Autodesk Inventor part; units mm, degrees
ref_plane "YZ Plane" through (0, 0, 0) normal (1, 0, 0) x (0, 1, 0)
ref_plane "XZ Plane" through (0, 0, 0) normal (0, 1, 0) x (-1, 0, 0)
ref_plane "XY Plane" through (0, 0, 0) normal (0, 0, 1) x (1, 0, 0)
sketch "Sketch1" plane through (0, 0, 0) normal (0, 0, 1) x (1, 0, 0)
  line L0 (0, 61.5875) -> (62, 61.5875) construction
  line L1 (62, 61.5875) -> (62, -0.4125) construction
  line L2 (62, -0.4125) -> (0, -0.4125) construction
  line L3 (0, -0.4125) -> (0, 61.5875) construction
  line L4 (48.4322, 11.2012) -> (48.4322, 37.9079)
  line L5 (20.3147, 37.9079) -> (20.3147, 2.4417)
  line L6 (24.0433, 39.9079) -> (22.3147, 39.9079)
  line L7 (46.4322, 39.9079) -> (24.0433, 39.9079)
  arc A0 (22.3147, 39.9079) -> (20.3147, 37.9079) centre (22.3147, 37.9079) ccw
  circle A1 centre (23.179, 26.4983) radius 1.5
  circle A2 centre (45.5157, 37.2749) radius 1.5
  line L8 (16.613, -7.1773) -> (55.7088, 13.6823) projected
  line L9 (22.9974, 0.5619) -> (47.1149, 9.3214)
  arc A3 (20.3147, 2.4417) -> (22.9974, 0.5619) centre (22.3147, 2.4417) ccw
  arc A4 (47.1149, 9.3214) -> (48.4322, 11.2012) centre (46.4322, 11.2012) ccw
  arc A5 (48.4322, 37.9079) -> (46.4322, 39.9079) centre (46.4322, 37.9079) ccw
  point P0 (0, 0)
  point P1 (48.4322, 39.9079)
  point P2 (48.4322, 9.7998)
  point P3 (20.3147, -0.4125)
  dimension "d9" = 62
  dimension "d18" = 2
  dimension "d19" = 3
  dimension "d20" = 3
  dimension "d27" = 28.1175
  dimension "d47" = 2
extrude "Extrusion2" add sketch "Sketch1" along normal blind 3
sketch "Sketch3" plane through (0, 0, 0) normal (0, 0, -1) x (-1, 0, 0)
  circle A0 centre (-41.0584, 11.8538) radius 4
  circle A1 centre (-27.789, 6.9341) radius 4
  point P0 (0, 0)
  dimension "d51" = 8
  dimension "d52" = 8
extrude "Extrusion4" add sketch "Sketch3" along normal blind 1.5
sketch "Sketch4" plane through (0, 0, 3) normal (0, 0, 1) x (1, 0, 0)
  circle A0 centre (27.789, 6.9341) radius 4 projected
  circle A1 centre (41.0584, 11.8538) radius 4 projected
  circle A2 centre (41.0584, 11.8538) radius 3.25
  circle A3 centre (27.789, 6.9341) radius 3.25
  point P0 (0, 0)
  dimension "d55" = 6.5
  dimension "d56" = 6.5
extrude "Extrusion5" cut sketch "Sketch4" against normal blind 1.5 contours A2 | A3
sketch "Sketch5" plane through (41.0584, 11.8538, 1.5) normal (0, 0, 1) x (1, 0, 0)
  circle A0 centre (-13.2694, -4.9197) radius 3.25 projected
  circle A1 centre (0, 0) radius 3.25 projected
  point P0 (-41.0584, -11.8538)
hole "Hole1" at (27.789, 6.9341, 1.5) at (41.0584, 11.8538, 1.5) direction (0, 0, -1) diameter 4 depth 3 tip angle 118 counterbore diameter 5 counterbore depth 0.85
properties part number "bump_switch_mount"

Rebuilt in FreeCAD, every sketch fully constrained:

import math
import FreeCAD as App
import Part
import Sketcher
from FreeCAD import Vector
Q = App.Units.Quantity

doc = App.newDocument("Part")
body = doc.addObject("PartDesign::Body", "Body")

sketch1 = doc.addObject("Sketcher::SketchObject", "Sketch")
body.addObject(sketch1)
sketch1.AttachmentSupport = (doc.XY_Plane, [""])
sketch1.MapMode = "FlatFace"
sketch1.addGeometry([
    Part.ArcOfCircle(Part.Circle(Vector(46.4322, 11.2012, 0), Vector(0, 0, 1), 1.999932), math.radians(-70.040146), math.radians(0)),
    Part.LineSegment(Vector(48.4322, 11.2012, 0), Vector(48.4322, 37.9079, 0)),
    Part.ArcOfCircle(Part.Circle(Vector(46.4322, 37.9079, 0), Vector(0, 0, 1), 2), math.radians(0), math.radians(90)),
    Part.LineSegment(Vector(46.4322, 39.9079, 0), Vector(22.3147, 39.9079, 0)),
    Part.ArcOfCircle(Part.Circle(Vector(22.3147, 37.9079, 0), Vector(0, 0, 1), 2), math.radians(90), math.radians(180)),
    Part.LineSegment(Vector(20.3147, 37.9079, 0), Vector(20.3147, 2.4417, 0)),
    Part.ArcOfCircle(Part.Circle(Vector(22.3147, 2.4417, 0), Vector(0, 0, 1), 2), math.radians(180), math.radians(289.959854)),
    Part.LineSegment(Vector(22.9974, 0.5619, 0), Vector(47.1149, 9.3214, 0)),
    Part.Circle(Vector(23.179, 26.4983, 0), Vector(0, 0, 1), 1.5),
    Part.Circle(Vector(45.5157, 37.2749, 0), Vector(0, 0, 1), 1.5),
], False)
sketch1.addConstraint([
    Sketcher.Constraint("Tangent", 0, 2, 1, 1),
    Sketcher.Constraint("Tangent", 1, 2, 2, 1),
    Sketcher.Constraint("Tangent", 2, 2, 3, 1),
    Sketcher.Constraint("Tangent", 3, 2, 4, 1),
    Sketcher.Constraint("Tangent", 4, 2, 5, 1),
    Sketcher.Constraint("Tangent", 5, 2, 6, 1),
    Sketcher.Constraint("Tangent", 6, 2, 7, 1),
    Sketcher.Constraint("Tangent", 7, 2, 0, 1),
    Sketcher.Constraint("Vertical", 1),
    Sketcher.Constraint("Horizontal", 3),
    Sketcher.Constraint("Vertical", 5),
    Sketcher.Constraint("Equal", 0, 2),
    Sketcher.Constraint("Equal", 2, 4),
    Sketcher.Constraint("Equal", 4, 6),
    Sketcher.Constraint("Equal", 8, 9),
    Sketcher.Constraint("Diameter", 8, Q("3 mm")),
    Sketcher.Constraint("Radius", 0, Q("2 mm")),
    Sketcher.Constraint("Angle", 7, Q("19.961 deg")),
    Sketcher.Constraint("DistanceX", 5, 2, 0, 2, Q("28.1174 mm")),
    Sketcher.Constraint("DistanceY", 1, 1, 1, 2, Q("26.7067 mm")),
    Sketcher.Constraint("DistanceY", -1, 1, 2, 3, Q("37.908 mm")),
    Sketcher.Constraint("DistanceX", -1, 1, 8, 3, Q("23.179 mm")),
    Sketcher.Constraint("DistanceY", -1, 1, 9, 3, Q("37.275 mm")),
    Sketcher.Constraint("DistanceX", -1, 1, 7, 2, Q("47.115 mm")),
    Sketcher.Constraint("DistanceY", 0, 3, 8, 3, Q("15.297 mm")),
    Sketcher.Constraint("DistanceX", 4, 3, 9, 3, Q("23.201 mm")),
])
pad1 = doc.addObject("PartDesign::Pad", "Pad")
body.addObject(pad1)
pad1.Profile = sketch1
pad1.Length = 3

sketch2 = doc.addObject("Sketcher::SketchObject", "Sketch001")
body.addObject(sketch2)
sketch2.AttachmentSupport = (doc.XY_Plane, [""])
sketch2.MapMode = "FlatFace"
sketch2.addGeometry([
    Part.Circle(Vector(41.0584, 11.8538, 0), Vector(0, 0, 1), 4),
    Part.Circle(Vector(27.789, 6.9341, 0), Vector(0, 0, 1), 4),
], False)
sketch2.addConstraint([
    Sketcher.Constraint("Equal", 0, 1),
    Sketcher.Constraint("Diameter", 0, Q("8 mm")),
    Sketcher.Constraint("DistanceX", -1, 1, 1, 3, Q("27.789 mm")),
    Sketcher.Constraint("DistanceY", -1, 1, 1, 3, Q("6.934 mm")),
    Sketcher.Constraint("DistanceX", -1, 1, 0, 3, Q("41.0584 mm")),
    Sketcher.Constraint("DistanceY", -1, 1, 0, 3, Q("11.8538 mm")),
])
pad2 = doc.addObject("PartDesign::Pad", "Pad001")
body.addObject(pad2)
pad2.Profile = sketch2
pad2.Length = 1.5
pad2.Reversed = True

sketch3 = doc.addObject("Sketcher::SketchObject", "Sketch002")
body.addObject(sketch3)
sketch3.AttachmentSupport = (doc.XY_Plane, [""])
sketch3.MapMode = "FlatFace"
sketch3.AttachmentOffset = App.Placement(Vector(0, 0, 3), App.Rotation())
sketch3.addGeometry([
    Part.Circle(Vector(41.0584, 11.8538, 0), Vector(0, 0, 1), 3.25),
    Part.Circle(Vector(27.789, 6.9341, 0), Vector(0, 0, 1), 3.25),
], False)
sketch3.addConstraint([
    Sketcher.Constraint("Equal", 0, 1),
    Sketcher.Constraint("Diameter", 0, Q("6.5 mm")),
    Sketcher.Constraint("DistanceX", -1, 1, 1, 3, Q("27.789 mm")),
    Sketcher.Constraint("DistanceY", -1, 1, 1, 3, Q("6.934 mm")),
    Sketcher.Constraint("DistanceX", -1, 1, 0, 3, Q("41.0584 mm")),
    Sketcher.Constraint("DistanceY", -1, 1, 0, 3, Q("11.8538 mm")),
])
pocket1 = doc.addObject("PartDesign::Pocket", "Pocket")
body.addObject(pocket1)
pocket1.Profile = sketch3
pocket1.Length = 1.5

sketch4 = doc.addObject("Sketcher::SketchObject", "Sketch003")
body.addObject(sketch4)
sketch4.AttachmentSupport = (doc.XY_Plane, [""])
sketch4.MapMode = "FlatFace"
sketch4.AttachmentOffset = App.Placement(Vector(0, 0, 1.5), App.Rotation())
sketch4.addGeometry([
    Part.Circle(Vector(27.789, 6.9341, 0), Vector(0, 0, 1), 2),
    Part.Circle(Vector(41.0584, 11.8538, 0), Vector(0, 0, 1), 2),
], False)
sketch4.addConstraint([
    Sketcher.Constraint("Equal", 0, 1),
    Sketcher.Constraint("Diameter", 0, Q("4 mm")),
    Sketcher.Constraint("DistanceX", -1, 1, 0, 3, Q("27.789 mm")),
    Sketcher.Constraint("DistanceY", -1, 1, 0, 3, Q("6.934 mm")),
    Sketcher.Constraint("DistanceX", -1, 1, 1, 3, Q("41.0584 mm")),
    Sketcher.Constraint("DistanceY", -1, 1, 1, 3, Q("11.8538 mm")),
])
doc.recompute()
hole = doc.addObject("PartDesign::Hole", "Hole")
body.addObject(hole)
hole.Profile = sketch4
hole.ThreadType = "None"
hole.Diameter = 4
hole.DepthType = "Dimension"
hole.Depth = 3
hole.DrillPoint = "Angled"
hole.DrillPointAngle = 118
hole.HoleCutType = "Counterbore"
hole.HoleCutDiameter = 5
hole.HoleCutDepth = 0.85

doc.recompute()
